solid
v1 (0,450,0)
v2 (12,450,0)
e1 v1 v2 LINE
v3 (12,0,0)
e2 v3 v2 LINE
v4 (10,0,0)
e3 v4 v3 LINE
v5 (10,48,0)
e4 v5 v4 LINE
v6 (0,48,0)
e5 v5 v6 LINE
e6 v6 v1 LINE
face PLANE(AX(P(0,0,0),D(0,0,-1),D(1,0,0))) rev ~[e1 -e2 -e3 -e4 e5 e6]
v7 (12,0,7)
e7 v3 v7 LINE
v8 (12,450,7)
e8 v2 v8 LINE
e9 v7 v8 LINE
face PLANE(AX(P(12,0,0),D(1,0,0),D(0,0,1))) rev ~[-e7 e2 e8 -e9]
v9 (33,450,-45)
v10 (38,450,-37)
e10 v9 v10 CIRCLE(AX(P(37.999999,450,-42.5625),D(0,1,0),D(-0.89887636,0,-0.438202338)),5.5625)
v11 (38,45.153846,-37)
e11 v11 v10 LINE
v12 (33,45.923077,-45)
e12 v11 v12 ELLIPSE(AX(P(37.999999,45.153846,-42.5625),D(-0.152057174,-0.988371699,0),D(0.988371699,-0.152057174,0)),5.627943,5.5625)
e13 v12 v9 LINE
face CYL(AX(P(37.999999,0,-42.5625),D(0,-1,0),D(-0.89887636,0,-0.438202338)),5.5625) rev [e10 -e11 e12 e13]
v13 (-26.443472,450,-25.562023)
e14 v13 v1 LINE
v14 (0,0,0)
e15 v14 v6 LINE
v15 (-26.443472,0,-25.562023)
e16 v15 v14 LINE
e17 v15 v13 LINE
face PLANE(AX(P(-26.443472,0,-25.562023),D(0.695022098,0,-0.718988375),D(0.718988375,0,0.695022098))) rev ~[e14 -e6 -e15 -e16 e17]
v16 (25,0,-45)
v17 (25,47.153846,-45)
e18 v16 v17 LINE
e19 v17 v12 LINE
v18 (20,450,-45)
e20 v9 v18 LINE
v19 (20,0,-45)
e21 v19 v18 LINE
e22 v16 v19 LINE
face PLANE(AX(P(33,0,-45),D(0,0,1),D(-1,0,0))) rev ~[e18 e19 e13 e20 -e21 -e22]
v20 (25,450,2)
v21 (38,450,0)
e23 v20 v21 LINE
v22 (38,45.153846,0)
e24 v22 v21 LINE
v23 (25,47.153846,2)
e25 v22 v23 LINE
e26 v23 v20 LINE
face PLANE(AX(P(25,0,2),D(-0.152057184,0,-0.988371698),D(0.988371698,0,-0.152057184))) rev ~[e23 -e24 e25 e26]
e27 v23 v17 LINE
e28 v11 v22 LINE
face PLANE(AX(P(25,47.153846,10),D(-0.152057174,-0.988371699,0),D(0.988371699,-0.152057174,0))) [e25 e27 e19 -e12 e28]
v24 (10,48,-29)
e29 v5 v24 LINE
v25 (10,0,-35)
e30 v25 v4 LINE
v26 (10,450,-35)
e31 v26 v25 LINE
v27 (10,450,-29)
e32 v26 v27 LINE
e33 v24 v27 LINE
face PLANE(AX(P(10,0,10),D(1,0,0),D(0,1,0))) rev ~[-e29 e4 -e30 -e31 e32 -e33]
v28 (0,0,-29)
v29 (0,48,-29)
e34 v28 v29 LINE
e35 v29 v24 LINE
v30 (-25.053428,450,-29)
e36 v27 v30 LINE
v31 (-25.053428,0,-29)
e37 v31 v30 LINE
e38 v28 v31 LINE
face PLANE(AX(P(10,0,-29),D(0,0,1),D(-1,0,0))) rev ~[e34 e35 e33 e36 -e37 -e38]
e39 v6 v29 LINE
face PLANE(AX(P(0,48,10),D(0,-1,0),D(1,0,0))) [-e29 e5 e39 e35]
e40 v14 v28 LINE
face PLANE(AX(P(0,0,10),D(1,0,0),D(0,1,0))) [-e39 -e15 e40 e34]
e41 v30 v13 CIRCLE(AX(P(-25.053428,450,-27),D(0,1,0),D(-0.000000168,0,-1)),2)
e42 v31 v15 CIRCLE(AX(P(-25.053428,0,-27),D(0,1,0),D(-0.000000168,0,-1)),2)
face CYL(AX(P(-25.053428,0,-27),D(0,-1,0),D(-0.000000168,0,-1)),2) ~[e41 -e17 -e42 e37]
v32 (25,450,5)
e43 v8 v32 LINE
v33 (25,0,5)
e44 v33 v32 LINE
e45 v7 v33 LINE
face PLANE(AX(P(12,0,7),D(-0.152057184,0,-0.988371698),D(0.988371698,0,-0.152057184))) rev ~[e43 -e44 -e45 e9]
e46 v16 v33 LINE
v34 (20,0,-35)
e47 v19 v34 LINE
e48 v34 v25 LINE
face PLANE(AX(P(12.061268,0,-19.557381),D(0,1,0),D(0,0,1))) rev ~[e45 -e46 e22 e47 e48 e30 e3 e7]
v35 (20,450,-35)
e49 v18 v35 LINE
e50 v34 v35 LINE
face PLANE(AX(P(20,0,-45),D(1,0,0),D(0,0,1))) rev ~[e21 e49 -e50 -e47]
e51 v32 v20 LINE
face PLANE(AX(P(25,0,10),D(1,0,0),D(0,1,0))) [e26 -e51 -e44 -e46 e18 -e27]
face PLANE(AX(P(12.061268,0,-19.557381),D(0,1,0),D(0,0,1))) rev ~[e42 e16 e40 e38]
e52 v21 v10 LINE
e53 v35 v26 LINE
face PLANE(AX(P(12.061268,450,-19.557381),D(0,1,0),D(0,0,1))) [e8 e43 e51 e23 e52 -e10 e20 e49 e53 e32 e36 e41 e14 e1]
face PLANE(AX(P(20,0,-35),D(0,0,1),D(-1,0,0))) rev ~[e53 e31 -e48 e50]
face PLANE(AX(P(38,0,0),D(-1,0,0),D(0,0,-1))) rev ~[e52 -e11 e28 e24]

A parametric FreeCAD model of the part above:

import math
import FreeCAD as App
import Part
import Sketcher
Q = App.Units.Quantity

doc = App.newDocument("Part")
params = doc.addObject("Spreadsheet::Sheet", "Params")
for row, (alias, value) in enumerate([
    ("sketch1_radius", "2 mm"),
    ("sketch1_width", "12 mm"),
    ("sketch1_width2", "13 mm"),
    ("sketch1_width3", "10 mm"),
    ("sketch1_height", "7 mm"),
    ("pad1_length", "450 mm"),
    ("sketch2_width", "14 mm"),
    ("sketch2_height", "45 mm"),
    ("pocket1_length", "60 mm"),
    ("sketch3_width", "10 mm"),
    ("sketch3_height", "48 mm"),
    ("pocket2_length", "60 mm"),
], start=1):
    params.set(f"A{row}", alias)
    params.set(f"B{row}", "=" + value)
    params.setAlias(f"B{row}", alias)

body = doc.addObject("PartDesign::Body", "Body")

sketch1 = body.newObject("Sketcher::SketchObject", "Sketch")
sketch1.AttachmentSupport = (doc.getObject("XZ_Plane"), [""])
sketch1.MapMode = "FlatFace"
sketch1.addGeometry(Part.LineSegment(App.Vector(0, 0, 0), App.Vector(12, 0, 0)), False)
sketch1.addGeometry(Part.LineSegment(App.Vector(12, 0, 0), App.Vector(12, 7, 0)), False)
sketch1.addGeometry(Part.LineSegment(App.Vector(12, 7, 0), App.Vector(25, 5, 0)), False)
sketch1.addGeometry(Part.LineSegment(App.Vector(25, 5, 0), App.Vector(25, 2, 0)), False)
sketch1.addGeometry(Part.LineSegment(App.Vector(25, 2, 0), App.Vector(38, 0, 0)), False)
sketch1.addGeometry(Part.LineSegment(App.Vector(38, 0, 0), App.Vector(38, -37, 0)), False)
sketch1.addGeometry(Part.ArcOfCircle(Part.Circle(App.Vector(37.999999, -42.5625, 0), App.Vector(0, 0, 1), 5.5625), math.radians(89.999994), math.radians(205.989239)), False)
sketch1.addGeometry(Part.LineSegment(App.Vector(33, -45, 0), App.Vector(20, -45, 0)), False)
sketch1.addGeometry(Part.LineSegment(App.Vector(20, -45, 0), App.Vector(20, -35, 0)), False)
sketch1.addGeometry(Part.LineSegment(App.Vector(20, -35, 0), App.Vector(10, -35, 0)), False)
sketch1.addGeometry(Part.LineSegment(App.Vector(10, -35, 0), App.Vector(10, -29, 0)), False)
sketch1.addGeometry(Part.LineSegment(App.Vector(10, -29, 0), App.Vector(-25.053428, -29, 0)), False)
sketch1.addGeometry(Part.ArcOfCircle(Part.Circle(App.Vector(-25.053428, -27, 0), App.Vector(0, 0, 1), 2), math.radians(134.028979), math.radians(269.99999)), False)
sketch1.addGeometry(Part.LineSegment(App.Vector(-26.443472, -25.562023, 0), App.Vector(0, 0, 0)), False)
sketch1.addConstraint(Sketcher.Constraint("Coincident", 0, 2, 1, 1))
sketch1.addConstraint(Sketcher.Constraint("Coincident", 1, 2, 2, 1))
sketch1.addConstraint(Sketcher.Constraint("Coincident", 2, 2, 3, 1))
sketch1.addConstraint(Sketcher.Constraint("Coincident", 3, 2, 4, 1))
sketch1.addConstraint(Sketcher.Constraint("Coincident", 4, 2, 5, 1))
sketch1.addConstraint(Sketcher.Constraint("Coincident", 5, 2, 6, 1))
sketch1.addConstraint(Sketcher.Constraint("Coincident", 6, 2, 7, 1))
sketch1.addConstraint(Sketcher.Constraint("Coincident", 7, 2, 8, 1))
sketch1.addConstraint(Sketcher.Constraint("Coincident", 8, 2, 9, 1))
sketch1.addConstraint(Sketcher.Constraint("Coincident", 9, 2, 10, 1))
sketch1.addConstraint(Sketcher.Constraint("Coincident", 10, 2, 11, 1))
sketch1.addConstraint(Sketcher.Constraint("Tangent", 11, 2, 12, 2))
sketch1.addConstraint(Sketcher.Constraint("Tangent", 12, 1, 13, 1))
sketch1.addConstraint(Sketcher.Constraint("Coincident", 13, 2, 0, 1))
sketch1.addConstraint(Sketcher.Constraint("Horizontal", 0))
sketch1.addConstraint(Sketcher.Constraint("Vertical", 1))
sketch1.addConstraint(Sketcher.Constraint("Vertical", 3))
sketch1.addConstraint(Sketcher.Constraint("Vertical", 5))
sketch1.addConstraint(Sketcher.Constraint("Horizontal", 7))
sketch1.addConstraint(Sketcher.Constraint("Vertical", 8))
sketch1.addConstraint(Sketcher.Constraint("Horizontal", 9))
sketch1.addConstraint(Sketcher.Constraint("Vertical", 10))
sketch1.addConstraint(Sketcher.Constraint("Horizontal", 11))
sketch1.addConstraint(Sketcher.Constraint("Coincident", 13, 2, -1, 1))
sketch1.addConstraint(Sketcher.Constraint("PointOnObject", 4, 2, -1))
sketch1.addConstraint(Sketcher.Constraint("Parallel", 2, 4))
sketch1.addConstraint(Sketcher.Constraint("Vertical", 6, 3, 4, 2))
sketch1.addConstraint(Sketcher.Constraint("Equal", 9, 8))
sketch1.addConstraint(Sketcher.Constraint("Equal", 2, 4))
sketch1.addConstraint(Sketcher.Constraint("Radius", 12, Q("2 mm")))
sketch1.addConstraint(Sketcher.Constraint("DistanceX", 0, 1, 0, 2, Q("12 mm")))
sketch1.addConstraint(Sketcher.Constraint("DistanceX", 7, 2, 7, 1, Q("13 mm")))
sketch1.addConstraint(Sketcher.Constraint("DistanceX", 9, 2, 9, 1, Q("10 mm")))
sketch1.addConstraint(Sketcher.Constraint("DistanceY", 1, 1, 1, 2, Q("7 mm")))
sketch1.addConstraint(Sketcher.Constraint("DistanceY", 3, 2, 3, 1, Q("3 mm")))
sketch1.addConstraint(Sketcher.Constraint("DistanceY", 5, 2, 5, 1, Q("37 mm")))
sketch1.addConstraint(Sketcher.Constraint("DistanceY", 10, 1, 10, 2, Q("6 mm")))
sketch1.addConstraint(Sketcher.Constraint("DistanceX", -1, 1, 6, 3, Q("37.999999 mm")))
sketch1.addConstraint(Sketcher.Constraint("DistanceY", 12, 3, -1, 1, Q("27 mm")))
sketch1.addConstraint(Sketcher.Constraint("DistanceX", -1, 1, 6, 2, Q("33 mm")))
sketch1.addConstraint(Sketcher.Constraint("Distance", 13, Q("36.77872 mm")))
sketch1.setExpression("Constraints[29]", "Params.sketch1_radius")
sketch1.setExpression("Constraints[30]", "Params.sketch1_width")
sketch1.setExpression("Constraints[31]", "Params.sketch1_width2")
sketch1.setExpression("Constraints[32]", "Params.sketch1_width3")
sketch1.setExpression("Constraints[33]", "Params.sketch1_height")
pad1 = body.newObject("PartDesign::Pad", "Pad")
pad1.Profile = sketch1
pad1.setExpression("Length", "Params.pad1_length")
pad1.Reversed = True

sketch2 = body.newObject("Sketcher::SketchObject", "Sketch001")
sketch2.AttachmentSupport = (doc.getObject("XY_Plane"), [""])
sketch2.MapMode = "FlatFace"
sketch2.AttachmentOffset = App.Placement(App.Vector(0, 0, 10), App.Rotation())
sketch2.addGeometry(Part.LineSegment(App.Vector(25, 47.153846, 0), App.Vector(25, 0, 0)), False)
sketch2.addGeometry(Part.LineSegment(App.Vector(25, 0, 0), App.Vector(39, 0, 0)), False)
sketch2.addGeometry(Part.LineSegment(App.Vector(39, 0, 0), App.Vector(39, 45, 0)), False)
sketch2.addGeometry(Part.LineSegment(App.Vector(39, 45, 0), App.Vector(25, 47.153846, 0)), False)
sketch2.addConstraint(Sketcher.Constraint("Coincident", 0, 2, 1, 1))
sketch2.addConstraint(Sketcher.Constraint("Coincident", 1, 2, 2, 1))
sketch2.addConstraint(Sketcher.Constraint("Coincident", 2, 2, 3, 1))
sketch2.addConstraint(Sketcher.Constraint("Coincident", 3, 2, 0, 1))
sketch2.addConstraint(Sketcher.Constraint("Vertical", 0))
sketch2.addConstraint(Sketcher.Constraint("Horizontal", 1))
sketch2.addConstraint(Sketcher.Constraint("Vertical", 2))
sketch2.addConstraint(Sketcher.Constraint("PointOnObject", 0, 2, -1))
sketch2.addConstraint(Sketcher.Constraint("DistanceX", 1, 1, 1, 2, Q("14 mm")))
sketch2.addConstraint(Sketcher.Constraint("DistanceY", 2, 1, 2, 2, Q("45 mm")))
sketch2.addConstraint(Sketcher.Constraint("DistanceX", -1, 1, 0, 2, Q("25 mm")))
sketch2.addConstraint(Sketcher.Constraint("Distance", 3, Q("14.164712 mm")))
sketch2.setExpression("Constraints[8]", "Params.sketch2_width")
sketch2.setExpression("Constraints[9]", "Params.sketch2_height")
pocket1 = body.newObject("PartDesign::Pocket", "Pocket")
pocket1.Profile = sketch2
pocket1.setExpression("Length", "Params.pocket1_length")

sketch3 = body.newObject("Sketcher::SketchObject", "Sketch002")
sketch3.AttachmentSupport = (doc.getObject("XY_Plane"), [""])
sketch3.MapMode = "FlatFace"
sketch3.AttachmentOffset = App.Placement(App.Vector(0, 0, 10), App.Rotation())
sketch3.addGeometry(Part.LineSegment(App.Vector(0, 48, 0), App.Vector(0, 0, 0)), False)
sketch3.addGeometry(Part.LineSegment(App.Vector(0, 0, 0), App.Vector(10, 0, 0)), False)
sketch3.addGeometry(Part.LineSegment(App.Vector(10, 0, 0), App.Vector(10, 48, 0)), False)
sketch3.addGeometry(Part.LineSegment(App.Vector(10, 48, 0), App.Vector(0, 48, 0)), False)
sketch3.addConstraint(Sketcher.Constraint("Coincident", 0, 2, 1, 1))
sketch3.addConstraint(Sketcher.Constraint("Coincident", 1, 2, 2, 1))
sketch3.addConstraint(Sketcher.Constraint("Coincident", 2, 2, 3, 1))
sketch3.addConstraint(Sketcher.Constraint("Coincident", 3, 2, 0, 1))
sketch3.addConstraint(Sketcher.Constraint("Vertical", 0))
sketch3.addConstraint(Sketcher.Constraint("Horizontal", 1))
sketch3.addConstraint(Sketcher.Constraint("Vertical", 2))
sketch3.addConstraint(Sketcher.Constraint("Horizontal", 3))
sketch3.addConstraint(Sketcher.Constraint("Coincident", 0, 2, -1, 1))
sketch3.addConstraint(Sketcher.Constraint("DistanceX", 1, 1, 1, 2, Q("10 mm")))
sketch3.addConstraint(Sketcher.Constraint("DistanceY", 0, 2, 0, 1, Q("48 mm")))
sketch3.setExpression("Constraints[9]", "Params.sketch3_width")
sketch3.setExpression("Constraints[10]", "Params.sketch3_height")
pocket2 = body.newObject("PartDesign::Pocket", "Pocket001")
pocket2.Profile = sketch3
pocket2.setExpression("Length", "Params.pocket2_length")

doc.recompute()
